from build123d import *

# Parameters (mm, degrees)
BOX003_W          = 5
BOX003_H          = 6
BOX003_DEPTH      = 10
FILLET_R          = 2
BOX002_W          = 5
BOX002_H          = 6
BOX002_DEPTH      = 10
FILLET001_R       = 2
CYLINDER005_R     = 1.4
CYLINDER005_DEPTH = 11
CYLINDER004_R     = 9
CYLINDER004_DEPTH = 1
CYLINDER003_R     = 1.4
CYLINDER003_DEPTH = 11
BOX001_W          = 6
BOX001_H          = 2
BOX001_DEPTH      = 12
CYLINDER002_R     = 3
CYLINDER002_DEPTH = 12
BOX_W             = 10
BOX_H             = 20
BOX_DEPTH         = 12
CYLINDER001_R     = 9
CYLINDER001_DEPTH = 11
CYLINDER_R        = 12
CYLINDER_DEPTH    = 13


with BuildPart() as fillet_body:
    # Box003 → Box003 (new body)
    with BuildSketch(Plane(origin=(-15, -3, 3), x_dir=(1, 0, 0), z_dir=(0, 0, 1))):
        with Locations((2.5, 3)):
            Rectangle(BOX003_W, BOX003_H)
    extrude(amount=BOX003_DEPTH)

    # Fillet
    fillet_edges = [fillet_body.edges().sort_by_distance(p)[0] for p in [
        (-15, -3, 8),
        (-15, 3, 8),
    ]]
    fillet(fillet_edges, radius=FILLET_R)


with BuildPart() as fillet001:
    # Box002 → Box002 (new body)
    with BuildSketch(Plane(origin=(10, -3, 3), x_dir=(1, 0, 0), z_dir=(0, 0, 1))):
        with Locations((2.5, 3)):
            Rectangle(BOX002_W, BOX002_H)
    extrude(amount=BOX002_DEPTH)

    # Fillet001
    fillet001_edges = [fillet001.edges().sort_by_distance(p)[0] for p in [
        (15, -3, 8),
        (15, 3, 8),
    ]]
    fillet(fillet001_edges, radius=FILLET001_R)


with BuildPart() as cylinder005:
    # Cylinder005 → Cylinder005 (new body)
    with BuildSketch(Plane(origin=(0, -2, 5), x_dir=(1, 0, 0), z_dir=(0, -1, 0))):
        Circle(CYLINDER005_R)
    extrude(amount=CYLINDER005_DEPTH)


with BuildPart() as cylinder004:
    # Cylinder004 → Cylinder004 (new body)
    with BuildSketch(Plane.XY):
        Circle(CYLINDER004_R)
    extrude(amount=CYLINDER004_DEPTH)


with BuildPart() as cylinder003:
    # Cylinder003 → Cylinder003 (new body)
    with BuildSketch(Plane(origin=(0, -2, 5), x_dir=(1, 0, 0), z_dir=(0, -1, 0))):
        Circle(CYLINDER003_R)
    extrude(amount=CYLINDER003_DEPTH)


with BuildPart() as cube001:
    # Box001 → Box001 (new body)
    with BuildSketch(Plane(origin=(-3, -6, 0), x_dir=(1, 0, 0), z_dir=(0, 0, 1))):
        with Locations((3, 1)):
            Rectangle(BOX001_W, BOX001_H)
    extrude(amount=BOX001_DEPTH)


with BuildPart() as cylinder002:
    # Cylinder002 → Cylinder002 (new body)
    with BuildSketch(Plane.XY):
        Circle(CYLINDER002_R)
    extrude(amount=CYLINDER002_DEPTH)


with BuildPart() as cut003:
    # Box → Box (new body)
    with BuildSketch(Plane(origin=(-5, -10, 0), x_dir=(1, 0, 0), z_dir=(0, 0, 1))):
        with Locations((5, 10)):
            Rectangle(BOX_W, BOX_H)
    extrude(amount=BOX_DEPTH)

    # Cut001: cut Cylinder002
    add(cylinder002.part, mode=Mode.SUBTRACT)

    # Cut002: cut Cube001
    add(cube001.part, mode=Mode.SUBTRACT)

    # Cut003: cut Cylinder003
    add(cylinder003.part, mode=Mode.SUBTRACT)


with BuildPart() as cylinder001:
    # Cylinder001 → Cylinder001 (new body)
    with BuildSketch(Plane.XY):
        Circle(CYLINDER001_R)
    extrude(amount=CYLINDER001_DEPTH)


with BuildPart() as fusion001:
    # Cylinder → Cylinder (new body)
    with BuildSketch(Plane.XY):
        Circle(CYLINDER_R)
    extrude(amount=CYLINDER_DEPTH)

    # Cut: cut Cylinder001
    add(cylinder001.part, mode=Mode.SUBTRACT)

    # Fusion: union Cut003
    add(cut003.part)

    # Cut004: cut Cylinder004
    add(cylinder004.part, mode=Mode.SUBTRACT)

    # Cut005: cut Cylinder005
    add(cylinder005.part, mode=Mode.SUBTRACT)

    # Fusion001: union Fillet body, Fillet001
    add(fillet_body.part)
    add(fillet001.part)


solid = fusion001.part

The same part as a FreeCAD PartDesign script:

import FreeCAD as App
import Part
import Sketcher

V = App.Vector


def edges_at(feature, points):
    """Names of the edges that pass closest to the given points."""
    edges = feature.Shape.Edges
    near = lambda p: min(range(len(edges)), key=lambda i: edges[i].distToShape(Part.Vertex(*p))[0])
    return sorted({f"Edge{near(p) + 1}" for p in points})

doc = App.newDocument("Part")
params = doc.addObject("Spreadsheet::Sheet", "Params")
for row, (alias, value) in enumerate([
    ("sketch1_width", "5 mm"),
    ("sketch1_height", "6 mm"),
    ("pad1_length", "10 mm"),
    ("fillet_radius", "2 mm"),
    ("sketch2_width", "5 mm"),
    ("sketch2_height", "6 mm"),
    ("pad2_length", "10 mm"),
    ("fillet2_radius", "2 mm"),
    ("sketch3_diameter", "2.8 mm"),
    ("pad3_length", "11 mm"),
    ("sketch4_diameter", "18 mm"),
    ("pad4_length", "1 mm"),
    ("sketch5_diameter", "2.8 mm"),
    ("pad5_length", "11 mm"),
    ("sketch6_width", "6 mm"),
    ("sketch6_height", "2 mm"),
    ("pad6_length", "12 mm"),
    ("sketch7_diameter", "6 mm"),
    ("pad7_length", "12 mm"),
    ("sketch8_width", "10 mm"),
    ("sketch8_height", "20 mm"),
    ("pad8_length", "12 mm"),
    ("sketch9_diameter", "18 mm"),
    ("pad9_length", "11 mm"),
    ("sketch10_diameter", "24 mm"),
    ("pad10_length", "13 mm"),
], start=1):
    params.set(f"A{row}", alias)
    params.set(f"B{row}", "=" + value)
    params.setAlias(f"B{row}", alias)

body = doc.addObject("PartDesign::Body", "Body")

sketch1 = body.newObject("Sketcher::SketchObject", "Sketch")
sketch1.AttachmentSupport = (doc.getObject("XY_Plane"), [""])
sketch1.MapMode = "FlatFace"
sketch1.AttachmentOffset = App.Placement(V(0, 0, 3), App.Rotation())
sketch1.addGeometry(Part.LineSegment(V(-15, 3, 0), V(-15, -3, 0)), False)
sketch1.addGeometry(Part.LineSegment(V(-15, -3, 0), V(-10, -3, 0)), False)
sketch1.addGeometry(Part.LineSegment(V(-10, -3, 0), V(-10, 3, 0)), False)
sketch1.addGeometry(Part.LineSegment(V(-10, 3, 0), V(-15, 3, 0)), False)
sketch1.addConstraint(Sketcher.Constraint("Coincident", 0, 2, 1, 1))
sketch1.addConstraint(Sketcher.Constraint("Coincident", 1, 2, 2, 1))
sketch1.addConstraint(Sketcher.Constraint("Coincident", 2, 2, 3, 1))
sketch1.addConstraint(Sketcher.Constraint("Coincident", 3, 2, 0, 1))
sketch1.addConstraint(Sketcher.Constraint("Vertical", 0))
sketch1.addConstraint(Sketcher.Constraint("Horizontal", 1))
sketch1.addConstraint(Sketcher.Constraint("Vertical", 2))
sketch1.addConstraint(Sketcher.Constraint("Horizontal", 3))
sketch1.addConstraint(Sketcher.Constraint("DistanceX", 1, 1, 1, 2, 5.0))
sketch1.addConstraint(Sketcher.Constraint("DistanceY", 0, 2, 0, 1, 6.0))
sketch1.addConstraint(Sketcher.Constraint("DistanceX", 0, 2, -1, 1, 15.0))
sketch1.addConstraint(Sketcher.Constraint("DistanceY", 0, 2, -1, 1, 3.0))
sketch1.setExpression("Constraints[8]", "Params.sketch1_width")
sketch1.setExpression("Constraints[9]", "Params.sketch1_height")
pad1 = body.newObject("PartDesign::Pad", "Pad")
pad1.Profile = sketch1
pad1.setExpression("Length", "Params.pad1_length")
doc.recompute()

fillet = body.newObject("PartDesign::Fillet", "Fillet")
fillet.Base = (pad1, edges_at(pad1, [(-15, -3, 8), (-15, 3, 8)]))
fillet.setExpression("Radius", "Params.fillet_radius")
body2 = doc.addObject("PartDesign::Body", "Body001")

sketch2 = body2.newObject("Sketcher::SketchObject", "Sketch001")
sketch2.AttachmentSupport = (doc.getObject("XY_Plane001"), [""])
sketch2.MapMode = "FlatFace"
sketch2.AttachmentOffset = App.Placement(V(0, 0, 3), App.Rotation())
sketch2.addGeometry(Part.LineSegment(V(10, 3, 0), V(10, -3, 0)), False)
sketch2.addGeometry(Part.LineSegment(V(10, -3, 0), V(15, -3, 0)), False)
sketch2.addGeometry(Part.LineSegment(V(15, -3, 0), V(15, 3, 0)), False)
sketch2.addGeometry(Part.LineSegment(V(15, 3, 0), V(10, 3, 0)), False)
sketch2.addConstraint(Sketcher.Constraint("Coincident", 0, 2, 1, 1))
sketch2.addConstraint(Sketcher.Constraint("Coincident", 1, 2, 2, 1))
sketch2.addConstraint(Sketcher.Constraint("Coincident", 2, 2, 3, 1))
sketch2.addConstraint(Sketcher.Constraint("Coincident", 3, 2, 0, 1))
sketch2.addConstraint(Sketcher.Constraint("Vertical", 0))
sketch2.addConstraint(Sketcher.Constraint("Horizontal", 1))
sketch2.addConstraint(Sketcher.Constraint("Vertical", 2))
sketch2.addConstraint(Sketcher.Constraint("Horizontal", 3))
sketch2.addConstraint(Sketcher.Constraint("DistanceX", 1, 1, 1, 2, 5.0))
sketch2.addConstraint(Sketcher.Constraint("DistanceY", 0, 2, 0, 1, 6.0))
sketch2.addConstraint(Sketcher.Constraint("DistanceX", -1, 1, 0, 2, 10.0))
sketch2.addConstraint(Sketcher.Constraint("DistanceY", 0, 2, -1, 1, 3.0))
sketch2.setExpression("Constraints[8]", "Params.sketch2_width")
sketch2.setExpression("Constraints[9]", "Params.sketch2_height")
pad2 = body2.newObject("PartDesign::Pad", "Pad001")
pad2.Profile = sketch2
pad2.setExpression("Length", "Params.pad2_length")
doc.recompute()

fillet2 = body2.newObject("PartDesign::Fillet", "Fillet001")
fillet2.Base = (pad2, edges_at(pad2, [(15, -3, 8), (15, 3, 8)]))
fillet2.setExpression("Radius", "Params.fillet2_radius")
body3 = doc.addObject("PartDesign::Body", "Body002")

sketch3 = body3.newObject("Sketcher::SketchObject", "Sketch002")
sketch3.AttachmentSupport = (doc.getObject("XZ_Plane002"), [""])
sketch3.MapMode = "FlatFace"
sketch3.AttachmentOffset = App.Placement(V(0, 0, 2), App.Rotation())
sketch3.addGeometry(Part.Circle(V(0, 5, 0), V(0, 0, 1), 1.4), False)
sketch3.addConstraint(Sketcher.Constraint("PointOnObject", 0, 3, -2))
sketch3.addConstraint(Sketcher.Constraint("Diameter", 0, 2.8))
sketch3.addConstraint(Sketcher.Constraint("DistanceY", -1, 1, 0, 3, 5.0))
sketch3.setExpression("Constraints[1]", "Params.sketch3_diameter")
pad3 = body3.newObject("PartDesign::Pad", "Pad002")
pad3.Profile = sketch3
pad3.setExpression("Length", "Params.pad3_length")
body4 = doc.addObject("PartDesign::Body", "Body003")

sketch4 = body4.newObject("Sketcher::SketchObject", "Sketch003")
sketch4.AttachmentSupport = (doc.getObject("XY_Plane003"), [""])
sketch4.MapMode = "FlatFace"
sketch4.addGeometry(Part.Circle(V(0, 0, 0), V(0, 0, 1), 9), False)
sketch4.addConstraint(Sketcher.Constraint("Coincident", 0, 3, -1, 1))
sketch4.addConstraint(Sketcher.Constraint("Diameter", 0, 18.0))
sketch4.setExpression("Constraints[1]", "Params.sketch4_diameter")
pad4 = body4.newObject("PartDesign::Pad", "Pad003")
pad4.Profile = sketch4
pad4.setExpression("Length", "Params.pad4_length")
body5 = doc.addObject("PartDesign::Body", "Body004")

sketch5 = body5.newObject("Sketcher::SketchObject", "Sketch004")
sketch5.AttachmentSupport = (doc.getObject("XZ_Plane004"), [""])
sketch5.MapMode = "FlatFace"
sketch5.AttachmentOffset = App.Placement(V(0, 0, 2), App.Rotation())
sketch5.addGeometry(Part.Circle(V(0, 5, 0), V(0, 0, 1), 1.4), False)
sketch5.addConstraint(Sketcher.Constraint("PointOnObject", 0, 3, -2))
sketch5.addConstraint(Sketcher.Constraint("Diameter", 0, 2.8))
sketch5.addConstraint(Sketcher.Constraint("DistanceY", -1, 1, 0, 3, 5.0))
sketch5.setExpression("Constraints[1]", "Params.sketch5_diameter")
pad5 = body5.newObject("PartDesign::Pad", "Pad004")
pad5.Profile = sketch5
pad5.setExpression("Length", "Params.pad5_length")
body6 = doc.addObject("PartDesign::Body", "Body005")

sketch6 = body6.newObject("Sketcher::SketchObject", "Sketch005")
sketch6.AttachmentSupport = (doc.getObject("XY_Plane005"), [""])
sketch6.MapMode = "FlatFace"
sketch6.addGeometry(Part.LineSegment(V(-3, -4, 0), V(-3, -6, 0)), False)
sketch6.addGeometry(Part.LineSegment(V(-3, -6, 0), V(3, -6, 0)), False)
sketch6.addGeometry(Part.LineSegment(V(3, -6, 0), V(3, -4, 0)), False)
sketch6.addGeometry(Part.LineSegment(V(3, -4, 0), V(-3, -4, 0)), False)
sketch6.addConstraint(Sketcher.Constraint("Coincident", 0, 2, 1, 1))
sketch6.addConstraint(Sketcher.Constraint("Coincident", 1, 2, 2, 1))
sketch6.addConstraint(Sketcher.Constraint("Coincident", 2, 2, 3, 1))
sketch6.addConstraint(Sketcher.Constraint("Coincident", 3, 2, 0, 1))
sketch6.addConstraint(Sketcher.Constraint("Vertical", 0))
sketch6.addConstraint(Sketcher.Constraint("Horizontal", 1))
sketch6.addConstraint(Sketcher.Constraint("Vertical", 2))
sketch6.addConstraint(Sketcher.Constraint("Horizontal", 3))
sketch6.addConstraint(Sketcher.Constraint("DistanceX", 1, 1, 1, 2, 6.0))
sketch6.addConstraint(Sketcher.Constraint("DistanceY", 0, 2, 0, 1, 2.0))
sketch6.addConstraint(Sketcher.Constraint("DistanceX", 0, 2, -1, 1, 3.0))
sketch6.addConstraint(Sketcher.Constraint("DistanceY", 0, 2, -1, 1, 6.0))
sketch6.setExpression("Constraints[8]", "Params.sketch6_width")
sketch6.setExpression("Constraints[9]", "Params.sketch6_height")
pad6 = body6.newObject("PartDesign::Pad", "Pad005")
pad6.Profile = sketch6
pad6.setExpression("Length", "Params.pad6_length")
body7 = doc.addObject("PartDesign::Body", "Body006")

sketch7 = body7.newObject("Sketcher::SketchObject", "Sketch006")
sketch7.AttachmentSupport = (doc.getObject("XY_Plane006"), [""])
sketch7.MapMode = "FlatFace"
sketch7.addGeometry(Part.Circle(V(0, 0, 0), V(0, 0, 1), 3), False)
sketch7.addConstraint(Sketcher.Constraint("Coincident", 0, 3, -1, 1))
sketch7.addConstraint(Sketcher.Constraint("Diameter", 0, 6.0))
sketch7.setExpression("Constraints[1]", "Params.sketch7_diameter")
pad7 = body7.newObject("PartDesign::Pad", "Pad006")
pad7.Profile = sketch7
pad7.setExpression("Length", "Params.pad7_length")
body8 = doc.addObject("PartDesign::Body", "Body007")

sketch8 = body8.newObject("Sketcher::SketchObject", "Sketch007")
sketch8.AttachmentSupport = (doc.getObject("XY_Plane007"), [""])
sketch8.MapMode = "FlatFace"
sketch8.addGeometry(Part.LineSegment(V(-5, 10, 0), V(-5, -10, 0)), False)
sketch8.addGeometry(Part.LineSegment(V(-5, -10, 0), V(5, -10, 0)), False)
sketch8.addGeometry(Part.LineSegment(V(5, -10, 0), V(5, 10, 0)), False)
sketch8.addGeometry(Part.LineSegment(V(5, 10, 0), V(-5, 10, 0)), False)
sketch8.addConstraint(Sketcher.Constraint("Coincident", 0, 2, 1, 1))
sketch8.addConstraint(Sketcher.Constraint("Coincident", 1, 2, 2, 1))
sketch8.addConstraint(Sketcher.Constraint("Coincident", 2, 2, 3, 1))
sketch8.addConstraint(Sketcher.Constraint("Coincident", 3, 2, 0, 1))
sketch8.addConstraint(Sketcher.Constraint("Vertical", 0))
sketch8.addConstraint(Sketcher.Constraint("Horizontal", 1))
sketch8.addConstraint(Sketcher.Constraint("Vertical", 2))
sketch8.addConstraint(Sketcher.Constraint("Horizontal", 3))
sketch8.addConstraint(Sketcher.Constraint("Symmetric", 0, 2, 2, 2, -1, 1))
sketch8.addConstraint(Sketcher.Constraint("DistanceX", 1, 1, 1, 2, 10.0))
sketch8.addConstraint(Sketcher.Constraint("DistanceY", 0, 2, 0, 1, 20.0))
sketch8.setExpression("Constraints[9]", "Params.sketch8_width")
sketch8.setExpression("Constraints[10]", "Params.sketch8_height")
pad8 = body8.newObject("PartDesign::Pad", "Pad007")
pad8.Profile = sketch8
pad8.setExpression("Length", "Params.pad8_length")
doc.recompute()

boolean = body8.newObject("PartDesign::Boolean", "Boolean")
boolean.Type = "Cut"
boolean.addObjects([body7])
doc.recompute()

boolean2 = body8.newObject("PartDesign::Boolean", "Boolean001")
boolean2.Type = "Cut"
boolean2.addObjects([body6])
doc.recompute()

boolean3 = body8.newObject("PartDesign::Boolean", "Boolean002")
boolean3.Type = "Cut"
boolean3.addObjects([body5])
body9 = doc.addObject("PartDesign::Body", "Body008")

sketch9 = body9.newObject("Sketcher::SketchObject", "Sketch008")
sketch9.AttachmentSupport = (doc.getObject("XY_Plane008"), [""])
sketch9.MapMode = "FlatFace"
sketch9.addGeometry(Part.Circle(V(0, 0, 0), V(0, 0, 1), 9), False)
sketch9.addConstraint(Sketcher.Constraint("Coincident", 0, 3, -1, 1))
sketch9.addConstraint(Sketcher.Constraint("Diameter", 0, 18.0))
sketch9.setExpression("Constraints[1]", "Params.sketch9_diameter")
pad9 = body9.newObject("PartDesign::Pad", "Pad008")
pad9.Profile = sketch9
pad9.setExpression("Length", "Params.pad9_length")
body10 = doc.addObject("PartDesign::Body", "Body009")

sketch10 = body10.newObject("Sketcher::SketchObject", "Sketch009")
sketch10.AttachmentSupport = (doc.getObject("XY_Plane009"), [""])
sketch10.MapMode = "FlatFace"
sketch10.addGeometry(Part.Circle(V(0, 0, 0), V(0, 0, 1), 12), False)
sketch10.addConstraint(Sketcher.Constraint("Coincident", 0, 3, -1, 1))
sketch10.addConstraint(Sketcher.Constraint("Diameter", 0, 24.0))
sketch10.setExpression("Constraints[1]", "Params.sketch10_diameter")
pad10 = body10.newObject("PartDesign::Pad", "Pad009")
pad10.Profile = sketch10
pad10.setExpression("Length", "Params.pad10_length")
doc.recompute()

boolean4 = body10.newObject("PartDesign::Boolean", "Boolean003")
boolean4.Type = "Cut"
boolean4.addObjects([body9])
doc.recompute()

boolean5 = body10.newObject("PartDesign::Boolean", "Boolean004")
boolean5.Type = "Fuse"
boolean5.addObjects([body8])
doc.recompute()

boolean6 = body10.newObject("PartDesign::Boolean", "Boolean005")
boolean6.Type = "Cut"
boolean6.addObjects([body4])
doc.recompute()

boolean7 = body10.newObject("PartDesign::Boolean", "Boolean006")
boolean7.Type = "Cut"
boolean7.addObjects([body3])
doc.recompute()

boolean8 = body10.newObject("PartDesign::Boolean", "Boolean007")
boolean8.Type = "Fuse"
boolean8.addObjects([body])
doc.recompute()

boolean9 = body10.newObject("PartDesign::Boolean", "Boolean008")
boolean9.Type = "Fuse"
boolean9.addObjects([body2])

doc.recompute()
